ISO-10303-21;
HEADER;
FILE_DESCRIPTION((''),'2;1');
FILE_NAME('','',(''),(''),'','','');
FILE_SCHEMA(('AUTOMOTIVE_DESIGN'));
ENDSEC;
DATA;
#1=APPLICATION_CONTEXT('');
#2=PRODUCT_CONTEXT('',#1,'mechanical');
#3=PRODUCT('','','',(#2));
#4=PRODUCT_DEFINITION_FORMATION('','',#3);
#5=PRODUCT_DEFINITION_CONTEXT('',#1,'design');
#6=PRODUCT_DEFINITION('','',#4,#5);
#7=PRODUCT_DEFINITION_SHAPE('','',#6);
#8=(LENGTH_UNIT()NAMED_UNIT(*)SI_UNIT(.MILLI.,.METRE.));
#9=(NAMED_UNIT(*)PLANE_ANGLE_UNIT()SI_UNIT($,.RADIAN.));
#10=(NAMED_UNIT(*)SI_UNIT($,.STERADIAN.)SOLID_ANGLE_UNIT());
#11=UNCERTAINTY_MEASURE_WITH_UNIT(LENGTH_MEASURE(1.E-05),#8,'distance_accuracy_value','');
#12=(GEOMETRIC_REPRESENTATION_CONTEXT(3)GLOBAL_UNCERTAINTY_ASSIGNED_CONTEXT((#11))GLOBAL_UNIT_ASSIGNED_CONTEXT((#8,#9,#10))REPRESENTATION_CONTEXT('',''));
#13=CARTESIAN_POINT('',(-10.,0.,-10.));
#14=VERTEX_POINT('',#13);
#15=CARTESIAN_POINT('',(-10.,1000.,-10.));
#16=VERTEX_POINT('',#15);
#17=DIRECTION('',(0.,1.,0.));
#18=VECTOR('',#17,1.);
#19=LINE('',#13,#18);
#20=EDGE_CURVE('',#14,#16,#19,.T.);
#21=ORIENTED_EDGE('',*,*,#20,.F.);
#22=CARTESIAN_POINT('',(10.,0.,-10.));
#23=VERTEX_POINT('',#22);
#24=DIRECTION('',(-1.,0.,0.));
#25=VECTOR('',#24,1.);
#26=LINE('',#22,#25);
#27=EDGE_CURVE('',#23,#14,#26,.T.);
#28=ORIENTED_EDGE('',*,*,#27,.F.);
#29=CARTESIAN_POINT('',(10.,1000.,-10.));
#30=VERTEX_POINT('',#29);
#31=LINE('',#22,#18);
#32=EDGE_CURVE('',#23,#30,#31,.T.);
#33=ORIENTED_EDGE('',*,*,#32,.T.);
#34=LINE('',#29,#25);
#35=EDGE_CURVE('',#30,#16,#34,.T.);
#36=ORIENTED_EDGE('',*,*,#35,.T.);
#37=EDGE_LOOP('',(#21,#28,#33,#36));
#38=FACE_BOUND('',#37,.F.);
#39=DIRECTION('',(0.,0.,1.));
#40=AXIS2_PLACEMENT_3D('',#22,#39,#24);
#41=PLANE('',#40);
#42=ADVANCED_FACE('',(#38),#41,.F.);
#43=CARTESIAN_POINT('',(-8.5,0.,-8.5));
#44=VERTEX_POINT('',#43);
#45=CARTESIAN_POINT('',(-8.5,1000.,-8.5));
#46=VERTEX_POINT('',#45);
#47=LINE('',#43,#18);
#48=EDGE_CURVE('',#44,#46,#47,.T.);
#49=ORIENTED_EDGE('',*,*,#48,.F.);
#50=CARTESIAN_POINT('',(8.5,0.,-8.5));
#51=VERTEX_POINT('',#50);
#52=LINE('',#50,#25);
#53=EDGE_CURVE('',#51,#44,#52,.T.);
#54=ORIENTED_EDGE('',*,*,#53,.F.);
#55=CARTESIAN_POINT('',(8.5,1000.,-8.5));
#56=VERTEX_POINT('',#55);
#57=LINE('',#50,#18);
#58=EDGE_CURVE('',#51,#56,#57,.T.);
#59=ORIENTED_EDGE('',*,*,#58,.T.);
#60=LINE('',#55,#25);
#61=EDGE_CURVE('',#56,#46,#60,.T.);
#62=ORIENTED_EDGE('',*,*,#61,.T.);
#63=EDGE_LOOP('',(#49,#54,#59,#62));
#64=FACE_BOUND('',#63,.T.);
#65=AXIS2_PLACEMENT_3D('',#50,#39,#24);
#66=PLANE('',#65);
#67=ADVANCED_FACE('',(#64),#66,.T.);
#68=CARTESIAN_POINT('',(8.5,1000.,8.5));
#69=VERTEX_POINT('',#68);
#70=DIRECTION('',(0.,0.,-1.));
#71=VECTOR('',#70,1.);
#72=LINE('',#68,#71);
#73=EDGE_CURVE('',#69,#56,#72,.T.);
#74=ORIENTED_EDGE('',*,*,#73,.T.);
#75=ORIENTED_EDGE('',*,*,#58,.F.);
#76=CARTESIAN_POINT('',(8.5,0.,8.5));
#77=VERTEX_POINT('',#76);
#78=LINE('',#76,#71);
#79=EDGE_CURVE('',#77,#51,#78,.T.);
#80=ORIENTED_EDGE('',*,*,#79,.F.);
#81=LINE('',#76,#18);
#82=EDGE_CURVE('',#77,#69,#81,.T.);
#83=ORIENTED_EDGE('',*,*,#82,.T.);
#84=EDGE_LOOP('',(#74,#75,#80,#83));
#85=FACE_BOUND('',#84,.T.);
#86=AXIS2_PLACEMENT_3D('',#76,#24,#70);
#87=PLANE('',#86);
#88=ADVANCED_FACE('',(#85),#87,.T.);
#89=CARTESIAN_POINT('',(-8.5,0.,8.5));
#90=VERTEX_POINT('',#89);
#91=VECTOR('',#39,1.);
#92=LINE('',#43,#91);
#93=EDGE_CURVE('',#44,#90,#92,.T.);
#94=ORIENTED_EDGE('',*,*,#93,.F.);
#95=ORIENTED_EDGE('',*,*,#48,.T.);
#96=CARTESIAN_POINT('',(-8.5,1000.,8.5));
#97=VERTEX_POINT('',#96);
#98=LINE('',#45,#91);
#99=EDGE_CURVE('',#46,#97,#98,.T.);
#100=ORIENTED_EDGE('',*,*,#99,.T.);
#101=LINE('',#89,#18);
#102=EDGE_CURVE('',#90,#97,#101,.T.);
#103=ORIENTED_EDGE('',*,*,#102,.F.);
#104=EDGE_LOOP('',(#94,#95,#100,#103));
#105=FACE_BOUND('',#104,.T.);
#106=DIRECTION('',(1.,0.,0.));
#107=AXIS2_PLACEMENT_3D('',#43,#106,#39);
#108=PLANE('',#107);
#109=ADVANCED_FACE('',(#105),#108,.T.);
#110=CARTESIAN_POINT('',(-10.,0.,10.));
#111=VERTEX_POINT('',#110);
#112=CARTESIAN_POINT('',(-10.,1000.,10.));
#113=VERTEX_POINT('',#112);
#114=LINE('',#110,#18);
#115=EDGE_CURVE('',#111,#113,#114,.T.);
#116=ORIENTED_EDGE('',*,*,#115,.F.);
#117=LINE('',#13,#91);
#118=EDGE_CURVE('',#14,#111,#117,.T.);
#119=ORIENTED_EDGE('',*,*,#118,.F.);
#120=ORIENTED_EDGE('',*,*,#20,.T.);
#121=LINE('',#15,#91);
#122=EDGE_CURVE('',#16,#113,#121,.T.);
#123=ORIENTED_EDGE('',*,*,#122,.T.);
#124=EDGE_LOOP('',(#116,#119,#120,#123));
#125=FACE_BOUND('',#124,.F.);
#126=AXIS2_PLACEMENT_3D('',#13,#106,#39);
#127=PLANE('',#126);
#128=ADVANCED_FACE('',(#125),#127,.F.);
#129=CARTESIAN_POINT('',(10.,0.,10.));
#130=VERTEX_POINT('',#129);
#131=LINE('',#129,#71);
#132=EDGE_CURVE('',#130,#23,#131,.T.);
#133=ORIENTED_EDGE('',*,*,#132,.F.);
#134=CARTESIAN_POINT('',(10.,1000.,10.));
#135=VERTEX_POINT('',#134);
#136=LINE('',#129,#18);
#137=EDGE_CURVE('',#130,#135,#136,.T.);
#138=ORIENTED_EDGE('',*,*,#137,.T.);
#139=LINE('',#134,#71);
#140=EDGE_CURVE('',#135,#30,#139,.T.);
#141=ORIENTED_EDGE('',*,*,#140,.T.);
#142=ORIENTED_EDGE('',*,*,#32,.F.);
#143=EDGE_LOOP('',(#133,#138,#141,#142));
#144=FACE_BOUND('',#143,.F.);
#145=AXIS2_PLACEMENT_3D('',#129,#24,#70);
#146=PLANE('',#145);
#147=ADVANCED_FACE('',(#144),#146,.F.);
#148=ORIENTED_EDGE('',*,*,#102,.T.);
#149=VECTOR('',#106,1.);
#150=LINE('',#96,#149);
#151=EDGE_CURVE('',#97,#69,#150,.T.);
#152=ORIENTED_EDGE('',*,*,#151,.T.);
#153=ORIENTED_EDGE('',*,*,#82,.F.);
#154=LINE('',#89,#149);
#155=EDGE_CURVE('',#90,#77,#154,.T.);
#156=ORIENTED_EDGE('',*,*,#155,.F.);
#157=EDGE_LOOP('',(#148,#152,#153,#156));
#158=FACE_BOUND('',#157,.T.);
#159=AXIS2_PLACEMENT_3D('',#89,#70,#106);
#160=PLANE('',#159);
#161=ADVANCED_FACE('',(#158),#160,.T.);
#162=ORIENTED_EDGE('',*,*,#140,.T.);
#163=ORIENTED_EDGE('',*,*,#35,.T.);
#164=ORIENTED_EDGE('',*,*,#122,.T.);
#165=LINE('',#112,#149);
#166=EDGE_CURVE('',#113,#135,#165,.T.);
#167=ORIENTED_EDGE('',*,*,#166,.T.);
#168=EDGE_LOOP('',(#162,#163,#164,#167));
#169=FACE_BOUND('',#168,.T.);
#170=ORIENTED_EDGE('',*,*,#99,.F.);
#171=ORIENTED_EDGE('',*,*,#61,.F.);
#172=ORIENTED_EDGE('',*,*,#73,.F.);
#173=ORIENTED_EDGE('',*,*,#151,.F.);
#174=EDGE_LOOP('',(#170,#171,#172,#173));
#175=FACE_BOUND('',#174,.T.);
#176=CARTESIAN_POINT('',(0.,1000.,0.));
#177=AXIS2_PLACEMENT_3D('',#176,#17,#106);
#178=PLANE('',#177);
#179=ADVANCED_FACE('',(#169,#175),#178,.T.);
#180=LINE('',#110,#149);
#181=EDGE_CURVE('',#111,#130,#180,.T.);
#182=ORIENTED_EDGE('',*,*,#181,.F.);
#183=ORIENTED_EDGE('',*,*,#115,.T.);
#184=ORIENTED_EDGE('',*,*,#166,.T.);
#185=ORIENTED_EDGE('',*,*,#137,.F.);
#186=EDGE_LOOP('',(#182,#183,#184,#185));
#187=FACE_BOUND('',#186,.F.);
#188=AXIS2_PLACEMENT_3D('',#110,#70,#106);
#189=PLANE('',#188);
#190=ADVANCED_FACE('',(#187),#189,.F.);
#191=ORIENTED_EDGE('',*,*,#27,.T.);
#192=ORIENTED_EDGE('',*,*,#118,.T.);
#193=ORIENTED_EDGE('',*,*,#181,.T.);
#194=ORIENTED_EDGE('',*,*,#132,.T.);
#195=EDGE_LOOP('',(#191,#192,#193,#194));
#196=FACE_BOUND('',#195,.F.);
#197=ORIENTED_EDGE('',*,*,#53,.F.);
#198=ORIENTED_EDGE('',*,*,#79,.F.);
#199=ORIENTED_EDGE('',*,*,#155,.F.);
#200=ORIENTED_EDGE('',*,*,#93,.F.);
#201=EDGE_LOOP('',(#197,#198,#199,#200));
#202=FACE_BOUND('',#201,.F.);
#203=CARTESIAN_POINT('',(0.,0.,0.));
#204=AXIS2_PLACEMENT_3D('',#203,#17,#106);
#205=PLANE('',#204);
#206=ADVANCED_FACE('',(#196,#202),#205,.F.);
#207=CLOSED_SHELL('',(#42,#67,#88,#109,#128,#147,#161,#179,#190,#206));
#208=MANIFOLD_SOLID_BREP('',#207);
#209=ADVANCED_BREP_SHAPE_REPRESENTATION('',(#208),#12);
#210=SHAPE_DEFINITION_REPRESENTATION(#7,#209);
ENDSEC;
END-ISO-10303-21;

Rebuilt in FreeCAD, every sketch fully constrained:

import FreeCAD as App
import Part
import Sketcher

V = App.Vector
Q = App.Units.Quantity


def add_polygon(sketch, points):
    """Adds a closed chain of lines whose ends are joined by coincident constraints."""
    first, n = sketch.GeometryCount, len(points)
    for a, b in zip(points, points[1:] + points[:1]):
        sketch.addGeometry(Part.LineSegment(App.Vector(*a, 0), App.Vector(*b, 0)), False)
    for i in range(n):
        sketch.addConstraint(Sketcher.Constraint("Coincident", first + i, 2, first + (i + 1) % n, 1))

doc = App.newDocument("Part")
body = doc.addObject("PartDesign::Body", "Body")

# Sketch on XZ plane
sketch1 = doc.addObject("Sketcher::SketchObject", "Sketch")
body.addObject(sketch1)
sketch1.AttachmentSupport = (doc.XZ_Plane, [""])
sketch1.MapMode = "FlatFace"
add_polygon(sketch1, [(10, 10), (10, -10), (-10, -10), (-10, 10)])  # lines 0-3
add_polygon(sketch1, [(-8.5, 8.5), (-8.5, -8.5), (8.5, -8.5), (8.5, 8.5)])  # lines 4-7
sketch1.addConstraint([
    Sketcher.Constraint("Vertical", 0),
    Sketcher.Constraint("Horizontal", 1),
    Sketcher.Constraint("Vertical", 2),
    Sketcher.Constraint("Horizontal", 3),
    Sketcher.Constraint("Vertical", 4),
    Sketcher.Constraint("Horizontal", 5),
    Sketcher.Constraint("Vertical", 6),
    Sketcher.Constraint("Horizontal", 7),
    Sketcher.Constraint("Symmetric", 0, 2, 2, 2, -1, 1),
    Sketcher.Constraint("Symmetric", 4, 2, 6, 2, -1, 1),
    Sketcher.Constraint("Equal", 3, 0),
    Sketcher.Constraint("Equal", 7, 4),
    Sketcher.Constraint("DistanceX", 1, 2, 1, 1, Q("20 mm")),
    Sketcher.Constraint("DistanceX", 1, 2, 4, 2, Q("1.5 mm")),
])
pad1 = doc.addObject("PartDesign::Pad", "Pad")
body.addObject(pad1)
pad1.Profile = sketch1
pad1.Length = 1000
pad1.Reversed = True

doc.recompute()
